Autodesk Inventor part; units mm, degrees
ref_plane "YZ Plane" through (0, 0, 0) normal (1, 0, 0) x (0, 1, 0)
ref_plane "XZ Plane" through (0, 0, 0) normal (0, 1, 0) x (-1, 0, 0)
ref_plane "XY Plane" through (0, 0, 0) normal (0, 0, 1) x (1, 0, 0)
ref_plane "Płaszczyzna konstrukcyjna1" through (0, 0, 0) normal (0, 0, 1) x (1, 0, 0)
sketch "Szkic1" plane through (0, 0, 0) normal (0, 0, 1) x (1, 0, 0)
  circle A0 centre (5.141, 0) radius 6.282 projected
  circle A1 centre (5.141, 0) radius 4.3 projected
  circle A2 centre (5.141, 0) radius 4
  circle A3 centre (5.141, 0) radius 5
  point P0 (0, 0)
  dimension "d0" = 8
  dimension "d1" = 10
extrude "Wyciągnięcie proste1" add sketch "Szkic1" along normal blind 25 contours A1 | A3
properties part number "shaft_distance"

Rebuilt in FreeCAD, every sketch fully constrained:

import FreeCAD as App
import Part
import Sketcher
Q = App.Units.Quantity

doc = App.newDocument("Part")
body = doc.addObject("PartDesign::Body", "Body")

# Sketch on XY plane
sketch1 = doc.addObject("Sketcher::SketchObject", "Sketch")
body.addObject(sketch1)
sketch1.AttachmentSupport = (doc.XY_Plane, [""])
sketch1.MapMode = "FlatFace"
sketch1.addGeometry([
    Part.Circle(App.Vector(5.1, 0, 0), App.Vector(0, 0, 1), 5),
    Part.Circle(App.Vector(5.1, 0, 0), App.Vector(0, 0, 1), 4),
], False)
sketch1.addConstraint([
    Sketcher.Constraint("Coincident", 1, 3, 0, 3),
    Sketcher.Constraint("PointOnObject", 0, 3, -1),
    Sketcher.Constraint("Diameter", 0, Q("10 mm")),
    Sketcher.Constraint("Diameter", 1, Q("8 mm")),
    Sketcher.Constraint("DistanceX", -1, 1, 0, 3, Q("5.141 mm")),
])
pad1 = doc.addObject("PartDesign::Pad", "Pad")
body.addObject(pad1)
pad1.Profile = sketch1
pad1.Length = 25

doc.recompute()
